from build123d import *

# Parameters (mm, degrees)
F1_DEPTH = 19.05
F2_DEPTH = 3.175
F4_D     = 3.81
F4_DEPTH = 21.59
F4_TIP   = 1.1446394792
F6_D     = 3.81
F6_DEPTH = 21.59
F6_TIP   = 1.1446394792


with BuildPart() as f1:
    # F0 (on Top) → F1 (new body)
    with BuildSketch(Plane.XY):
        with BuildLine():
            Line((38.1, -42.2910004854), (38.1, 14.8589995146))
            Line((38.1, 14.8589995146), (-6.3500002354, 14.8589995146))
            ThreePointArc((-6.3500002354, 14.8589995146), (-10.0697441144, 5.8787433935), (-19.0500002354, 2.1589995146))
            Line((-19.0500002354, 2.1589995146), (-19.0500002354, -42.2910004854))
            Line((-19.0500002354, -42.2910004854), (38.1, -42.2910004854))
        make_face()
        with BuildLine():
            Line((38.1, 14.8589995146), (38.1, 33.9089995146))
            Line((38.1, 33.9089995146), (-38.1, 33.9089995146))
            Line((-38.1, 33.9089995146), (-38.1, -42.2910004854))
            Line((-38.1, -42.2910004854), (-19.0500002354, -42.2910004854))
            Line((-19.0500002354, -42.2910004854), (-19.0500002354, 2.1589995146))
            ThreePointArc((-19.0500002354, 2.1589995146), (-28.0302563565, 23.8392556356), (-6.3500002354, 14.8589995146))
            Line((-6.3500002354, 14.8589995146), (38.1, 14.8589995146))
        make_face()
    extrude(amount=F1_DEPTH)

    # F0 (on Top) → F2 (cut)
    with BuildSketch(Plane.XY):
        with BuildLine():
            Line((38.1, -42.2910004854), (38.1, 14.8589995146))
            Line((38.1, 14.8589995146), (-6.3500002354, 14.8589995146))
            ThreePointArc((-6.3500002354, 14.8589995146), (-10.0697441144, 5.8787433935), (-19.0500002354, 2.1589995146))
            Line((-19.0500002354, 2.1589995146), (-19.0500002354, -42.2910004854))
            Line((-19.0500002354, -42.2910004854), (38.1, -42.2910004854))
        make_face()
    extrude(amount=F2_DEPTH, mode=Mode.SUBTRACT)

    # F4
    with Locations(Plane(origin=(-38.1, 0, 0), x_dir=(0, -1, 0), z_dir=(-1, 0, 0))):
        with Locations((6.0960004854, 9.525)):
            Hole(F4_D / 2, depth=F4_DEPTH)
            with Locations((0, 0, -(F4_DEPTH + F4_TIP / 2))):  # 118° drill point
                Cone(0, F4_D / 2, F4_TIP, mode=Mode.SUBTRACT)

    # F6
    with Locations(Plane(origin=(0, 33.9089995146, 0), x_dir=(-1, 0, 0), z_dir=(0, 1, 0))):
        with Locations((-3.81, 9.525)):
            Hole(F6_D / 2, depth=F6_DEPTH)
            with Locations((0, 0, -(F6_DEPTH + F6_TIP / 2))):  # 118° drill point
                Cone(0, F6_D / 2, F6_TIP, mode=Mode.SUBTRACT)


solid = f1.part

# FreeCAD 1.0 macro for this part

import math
import FreeCAD as App
import Part
import Sketcher
from FreeCAD import Vector
Q = App.Units.Quantity

doc = App.newDocument("Part")
body = doc.addObject("PartDesign::Body", "Body")

sketch1 = body.newObject("Sketcher::SketchObject", "Sketch")
sketch1.AttachmentSupport = (doc.getObject("XY_Plane"), [""])
sketch1.MapMode = "FlatFace"
sketch1.addGeometry(Part.LineSegment(Vector(38, -42, 0), Vector(38, 34, 0)), False)
sketch1.addGeometry(Part.LineSegment(Vector(38, 34, 0), Vector(-38, 34, 0)), False)
sketch1.addGeometry(Part.LineSegment(Vector(-38, 34, 0), Vector(-38, -42, 0)), False)
sketch1.addGeometry(Part.LineSegment(Vector(-38, -42, 0), Vector(38, -42, 0)), False)
sketch1.addGeometry(Part.ArcOfCircle(Part.Circle(Vector(-19, 15, 0), Vector(0, 0, 1), 13), math.radians(-90), math.radians(0)), False)
sketch1.addGeometry(Part.ArcOfCircle(Part.Circle(Vector(-19, 15, 0), Vector(0, 0, 1), 13), math.radians(0), math.radians(270)), False)
sketch1.addConstraint(Sketcher.Constraint("Coincident", 0, 2, 1, 1))
sketch1.addConstraint(Sketcher.Constraint("Coincident", 1, 2, 2, 1))
sketch1.addConstraint(Sketcher.Constraint("Coincident", 2, 2, 3, 1))
sketch1.addConstraint(Sketcher.Constraint("Coincident", 3, 2, 0, 1))
sketch1.addConstraint(Sketcher.Constraint("Tangent", 4, 1, 5, 2))
sketch1.addConstraint(Sketcher.Constraint("Coincident", 5, 1, 4, 2))
sketch1.addConstraint(Sketcher.Constraint("Vertical", 0))
sketch1.addConstraint(Sketcher.Constraint("Horizontal", 1))
sketch1.addConstraint(Sketcher.Constraint("Vertical", 2))
sketch1.addConstraint(Sketcher.Constraint("Horizontal", 3))
sketch1.addConstraint(Sketcher.Constraint("Horizontal", 4, 3, 5, 1))
sketch1.addConstraint(Sketcher.Constraint("Vertical", 5, 3, 4, 1))
sketch1.addConstraint(Sketcher.Constraint("Equal", 3, 0))
sketch1.addConstraint(Sketcher.Constraint("Radius", 4, Q("0.5 in")))
sketch1.addConstraint(Sketcher.Constraint("DistanceX", 1, 2, 1, 1, Q("3 in")))
sketch1.addConstraint(Sketcher.Constraint("DistanceX", -1, 1, 0, 2, Q("1.5 in")))
sketch1.addConstraint(Sketcher.Constraint("DistanceX", 4, 3, -1, 1, Q("0.75 in")))
sketch1.addConstraint(Sketcher.Constraint("DistanceY", 4, 3, 0, 2, Q("0.75 in")))
sketch1.addConstraint(Sketcher.Constraint("DistanceY", -1, 1, 4, 3, Q("0.585 in")))
pad1 = body.newObject("PartDesign::Pad", "Pad")
pad1.Profile = sketch1
pad1.Length = Q("0.75 in")

sketch2 = body.newObject("Sketcher::SketchObject", "Sketch001")
sketch2.AttachmentSupport = (doc.getObject("XY_Plane"), [""])
sketch2.MapMode = "FlatFace"
sketch2.addGeometry(Part.LineSegment(Vector(38, -42, 0), Vector(38, 15, 0)), False)
sketch2.addGeometry(Part.LineSegment(Vector(38, 15, 0), Vector(-6, 15, 0)), False)
sketch2.addGeometry(Part.ArcOfCircle(Part.Circle(Vector(-19, 15, 0), Vector(0, 0, 1), 13), math.radians(-90), math.radians(0)), False)
sketch2.addGeometry(Part.LineSegment(Vector(-19, 2, 0), Vector(-19, -42, 0)), False)
sketch2.addGeometry(Part.LineSegment(Vector(-19, -42, 0), Vector(38, -42, 0)), False)
sketch2.addConstraint(Sketcher.Constraint("Coincident", 0, 2, 1, 1))
sketch2.addConstraint(Sketcher.Constraint("Coincident", 1, 2, 2, 2))
sketch2.addConstraint(Sketcher.Constraint("Coincident", 2, 1, 3, 1))
sketch2.addConstraint(Sketcher.Constraint("Coincident", 3, 2, 4, 1))
sketch2.addConstraint(Sketcher.Constraint("Coincident", 4, 2, 0, 1))
sketch2.addConstraint(Sketcher.Constraint("Vertical", 0))
sketch2.addConstraint(Sketcher.Constraint("Horizontal", 1))
sketch2.addConstraint(Sketcher.Constraint("Vertical", 3))
sketch2.addConstraint(Sketcher.Constraint("Horizontal", 4))
sketch2.addConstraint(Sketcher.Constraint("Horizontal", 2, 3, 0, 2))
sketch2.addConstraint(Sketcher.Constraint("Equal", 4, 0))
sketch2.addConstraint(Sketcher.Constraint("Equal", 1, 3))
sketch2.addConstraint(Sketcher.Constraint("Radius", 2, Q("0.5 in")))
sketch2.addConstraint(Sketcher.Constraint("DistanceX", 1, 2, 1, 1, Q("1.75 in")))
sketch2.addConstraint(Sketcher.Constraint("DistanceX", -1, 1, 0, 2, Q("1.5 in")))
sketch2.addConstraint(Sketcher.Constraint("DistanceY", -1, 1, 2, 3, Q("0.585 in")))
pocket1 = body.newObject("PartDesign::Pocket", "Pocket")
pocket1.Profile = sketch2
pocket1.Length = Q("0.125 in")
pocket1.Reversed = True

sketch3 = body.newObject("Sketcher::SketchObject", "Sketch002")
sketch3.AttachmentSupport = (doc.getObject("YZ_Plane"), [""])
sketch3.MapMode = "FlatFace"
sketch3.AttachmentOffset = App.Placement(Vector(0, 0, -1.5 * 25.4), App.Rotation())
sketch3.addGeometry(Part.Circle(Vector(-6.1, 9.5, 0), Vector(0, 0, 1), 1.9), False)
sketch3.addConstraint(Sketcher.Constraint("Diameter", 0, Q("0.15 in")))
sketch3.addConstraint(Sketcher.Constraint("DistanceX", 0, 3, -1, 1, Q("0.24 in")))
sketch3.addConstraint(Sketcher.Constraint("DistanceY", -1, 1, 0, 3, Q("0.375 in")))
doc.recompute()
hole = body.newObject("PartDesign::Hole", "Hole")
hole.Profile = sketch3
hole.ThreadType = "None"
hole.Diameter = Q("0.15 in")
hole.DepthType = "Dimension"
hole.Depth = Q("0.85 in")
hole.DrillPoint = "Angled"
hole.DrillPointAngle = 118
hole.Reversed = True

sketch4 = body.newObject("Sketcher::SketchObject", "Sketch003")
sketch4.AttachmentSupport = (doc.getObject("XZ_Plane"), [""])
sketch4.MapMode = "FlatFace"
sketch4.AttachmentOffset = App.Placement(Vector(0, 0, -1.335 * 25.4), App.Rotation())
sketch4.addGeometry(Part.Circle(Vector(3.8, 9.5, 0), Vector(0, 0, 1), 1.9), False)
sketch4.addConstraint(Sketcher.Constraint("Diameter", 0, Q("0.15 in")))
sketch4.addConstraint(Sketcher.Constraint("DistanceX", -1, 1, 0, 3, Q("0.15 in")))
sketch4.addConstraint(Sketcher.Constraint("DistanceY", -1, 1, 0, 3, Q("0.375 in")))
doc.recompute()
hole2 = body.newObject("PartDesign::Hole", "Hole001")
hole2.Profile = sketch4
hole2.ThreadType = "None"
hole2.Diameter = Q("0.15 in")
hole2.DepthType = "Dimension"
hole2.Depth = Q("0.85 in")
hole2.DrillPoint = "Angled"
hole2.DrillPointAngle = 118
hole2.Reversed = True

doc.recompute()
